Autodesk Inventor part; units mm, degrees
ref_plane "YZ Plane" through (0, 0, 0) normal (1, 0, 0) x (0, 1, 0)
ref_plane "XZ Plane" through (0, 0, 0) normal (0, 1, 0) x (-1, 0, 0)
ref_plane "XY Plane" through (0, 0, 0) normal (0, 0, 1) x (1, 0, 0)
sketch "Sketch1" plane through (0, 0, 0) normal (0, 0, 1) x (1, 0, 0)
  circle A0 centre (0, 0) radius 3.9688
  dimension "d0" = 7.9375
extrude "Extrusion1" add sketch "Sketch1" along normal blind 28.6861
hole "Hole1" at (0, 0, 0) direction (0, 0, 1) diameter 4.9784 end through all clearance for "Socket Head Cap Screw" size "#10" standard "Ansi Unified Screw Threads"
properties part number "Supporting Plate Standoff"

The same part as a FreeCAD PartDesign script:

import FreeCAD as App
import Part
import Sketcher
from FreeCAD import Vector
Q = App.Units.Quantity

doc = App.newDocument("Part")
params = doc.addObject("Spreadsheet::Sheet", "Params")
for row, (alias, value) in enumerate([
    ("sketch1_diameter", "0.3125 in"),
    ("pad1_length", "28.6861 mm"),
    ("sketch2_diameter", "0.196 in"),
    ("hole_diameter", "0.196 in"),
], start=1):
    params.set(f"A{row}", alias)
    params.set(f"B{row}", "=" + value)
    params.setAlias(f"B{row}", alias)

body = doc.addObject("PartDesign::Body", "Body")

# Sketch on XY plane
sketch1 = body.newObject("Sketcher::SketchObject", "Sketch")
sketch1.AttachmentSupport = (doc.getObject("XY_Plane"), [""])
sketch1.MapMode = "FlatFace"
sketch1.addGeometry(Part.Circle(Vector(0, 0, 0), Vector(0, 0, 1), 3.9688), False)
sketch1.addConstraint([
    Sketcher.Constraint("Coincident", 0, 3, -1, 1),
    Sketcher.Constraint("Diameter", 0, Q("0.3125 in")),
])
sketch1.setExpression("Constraints[1]", "Params.sketch1_diameter")
pad1 = body.newObject("PartDesign::Pad", "Pad")
pad1.Profile = sketch1
pad1.setExpression("Length", "Params.pad1_length")

# Sketch on XY plane
sketch2 = body.newObject("Sketcher::SketchObject", "Sketch001")
sketch2.AttachmentSupport = (doc.getObject("XY_Plane"), [""])
sketch2.MapMode = "FlatFace"
sketch2.addGeometry(Part.Circle(Vector(0, 0, 0), Vector(0, 0, 1), 2.4892), False)
sketch2.addConstraint([
    Sketcher.Constraint("Coincident", 0, 3, -1, 1),
    Sketcher.Constraint("Diameter", 0, Q("0.196 in")),
])
sketch2.setExpression("Constraints[1]", "Params.sketch2_diameter")
doc.recompute()
hole = body.newObject("PartDesign::Hole", "Hole")
hole.Profile = sketch2
hole.ThreadType = "None"
hole.setExpression("Diameter", "Params.hole_diameter")
hole.DepthType = "ThroughAll"
hole.Reversed = True

doc.recompute()
